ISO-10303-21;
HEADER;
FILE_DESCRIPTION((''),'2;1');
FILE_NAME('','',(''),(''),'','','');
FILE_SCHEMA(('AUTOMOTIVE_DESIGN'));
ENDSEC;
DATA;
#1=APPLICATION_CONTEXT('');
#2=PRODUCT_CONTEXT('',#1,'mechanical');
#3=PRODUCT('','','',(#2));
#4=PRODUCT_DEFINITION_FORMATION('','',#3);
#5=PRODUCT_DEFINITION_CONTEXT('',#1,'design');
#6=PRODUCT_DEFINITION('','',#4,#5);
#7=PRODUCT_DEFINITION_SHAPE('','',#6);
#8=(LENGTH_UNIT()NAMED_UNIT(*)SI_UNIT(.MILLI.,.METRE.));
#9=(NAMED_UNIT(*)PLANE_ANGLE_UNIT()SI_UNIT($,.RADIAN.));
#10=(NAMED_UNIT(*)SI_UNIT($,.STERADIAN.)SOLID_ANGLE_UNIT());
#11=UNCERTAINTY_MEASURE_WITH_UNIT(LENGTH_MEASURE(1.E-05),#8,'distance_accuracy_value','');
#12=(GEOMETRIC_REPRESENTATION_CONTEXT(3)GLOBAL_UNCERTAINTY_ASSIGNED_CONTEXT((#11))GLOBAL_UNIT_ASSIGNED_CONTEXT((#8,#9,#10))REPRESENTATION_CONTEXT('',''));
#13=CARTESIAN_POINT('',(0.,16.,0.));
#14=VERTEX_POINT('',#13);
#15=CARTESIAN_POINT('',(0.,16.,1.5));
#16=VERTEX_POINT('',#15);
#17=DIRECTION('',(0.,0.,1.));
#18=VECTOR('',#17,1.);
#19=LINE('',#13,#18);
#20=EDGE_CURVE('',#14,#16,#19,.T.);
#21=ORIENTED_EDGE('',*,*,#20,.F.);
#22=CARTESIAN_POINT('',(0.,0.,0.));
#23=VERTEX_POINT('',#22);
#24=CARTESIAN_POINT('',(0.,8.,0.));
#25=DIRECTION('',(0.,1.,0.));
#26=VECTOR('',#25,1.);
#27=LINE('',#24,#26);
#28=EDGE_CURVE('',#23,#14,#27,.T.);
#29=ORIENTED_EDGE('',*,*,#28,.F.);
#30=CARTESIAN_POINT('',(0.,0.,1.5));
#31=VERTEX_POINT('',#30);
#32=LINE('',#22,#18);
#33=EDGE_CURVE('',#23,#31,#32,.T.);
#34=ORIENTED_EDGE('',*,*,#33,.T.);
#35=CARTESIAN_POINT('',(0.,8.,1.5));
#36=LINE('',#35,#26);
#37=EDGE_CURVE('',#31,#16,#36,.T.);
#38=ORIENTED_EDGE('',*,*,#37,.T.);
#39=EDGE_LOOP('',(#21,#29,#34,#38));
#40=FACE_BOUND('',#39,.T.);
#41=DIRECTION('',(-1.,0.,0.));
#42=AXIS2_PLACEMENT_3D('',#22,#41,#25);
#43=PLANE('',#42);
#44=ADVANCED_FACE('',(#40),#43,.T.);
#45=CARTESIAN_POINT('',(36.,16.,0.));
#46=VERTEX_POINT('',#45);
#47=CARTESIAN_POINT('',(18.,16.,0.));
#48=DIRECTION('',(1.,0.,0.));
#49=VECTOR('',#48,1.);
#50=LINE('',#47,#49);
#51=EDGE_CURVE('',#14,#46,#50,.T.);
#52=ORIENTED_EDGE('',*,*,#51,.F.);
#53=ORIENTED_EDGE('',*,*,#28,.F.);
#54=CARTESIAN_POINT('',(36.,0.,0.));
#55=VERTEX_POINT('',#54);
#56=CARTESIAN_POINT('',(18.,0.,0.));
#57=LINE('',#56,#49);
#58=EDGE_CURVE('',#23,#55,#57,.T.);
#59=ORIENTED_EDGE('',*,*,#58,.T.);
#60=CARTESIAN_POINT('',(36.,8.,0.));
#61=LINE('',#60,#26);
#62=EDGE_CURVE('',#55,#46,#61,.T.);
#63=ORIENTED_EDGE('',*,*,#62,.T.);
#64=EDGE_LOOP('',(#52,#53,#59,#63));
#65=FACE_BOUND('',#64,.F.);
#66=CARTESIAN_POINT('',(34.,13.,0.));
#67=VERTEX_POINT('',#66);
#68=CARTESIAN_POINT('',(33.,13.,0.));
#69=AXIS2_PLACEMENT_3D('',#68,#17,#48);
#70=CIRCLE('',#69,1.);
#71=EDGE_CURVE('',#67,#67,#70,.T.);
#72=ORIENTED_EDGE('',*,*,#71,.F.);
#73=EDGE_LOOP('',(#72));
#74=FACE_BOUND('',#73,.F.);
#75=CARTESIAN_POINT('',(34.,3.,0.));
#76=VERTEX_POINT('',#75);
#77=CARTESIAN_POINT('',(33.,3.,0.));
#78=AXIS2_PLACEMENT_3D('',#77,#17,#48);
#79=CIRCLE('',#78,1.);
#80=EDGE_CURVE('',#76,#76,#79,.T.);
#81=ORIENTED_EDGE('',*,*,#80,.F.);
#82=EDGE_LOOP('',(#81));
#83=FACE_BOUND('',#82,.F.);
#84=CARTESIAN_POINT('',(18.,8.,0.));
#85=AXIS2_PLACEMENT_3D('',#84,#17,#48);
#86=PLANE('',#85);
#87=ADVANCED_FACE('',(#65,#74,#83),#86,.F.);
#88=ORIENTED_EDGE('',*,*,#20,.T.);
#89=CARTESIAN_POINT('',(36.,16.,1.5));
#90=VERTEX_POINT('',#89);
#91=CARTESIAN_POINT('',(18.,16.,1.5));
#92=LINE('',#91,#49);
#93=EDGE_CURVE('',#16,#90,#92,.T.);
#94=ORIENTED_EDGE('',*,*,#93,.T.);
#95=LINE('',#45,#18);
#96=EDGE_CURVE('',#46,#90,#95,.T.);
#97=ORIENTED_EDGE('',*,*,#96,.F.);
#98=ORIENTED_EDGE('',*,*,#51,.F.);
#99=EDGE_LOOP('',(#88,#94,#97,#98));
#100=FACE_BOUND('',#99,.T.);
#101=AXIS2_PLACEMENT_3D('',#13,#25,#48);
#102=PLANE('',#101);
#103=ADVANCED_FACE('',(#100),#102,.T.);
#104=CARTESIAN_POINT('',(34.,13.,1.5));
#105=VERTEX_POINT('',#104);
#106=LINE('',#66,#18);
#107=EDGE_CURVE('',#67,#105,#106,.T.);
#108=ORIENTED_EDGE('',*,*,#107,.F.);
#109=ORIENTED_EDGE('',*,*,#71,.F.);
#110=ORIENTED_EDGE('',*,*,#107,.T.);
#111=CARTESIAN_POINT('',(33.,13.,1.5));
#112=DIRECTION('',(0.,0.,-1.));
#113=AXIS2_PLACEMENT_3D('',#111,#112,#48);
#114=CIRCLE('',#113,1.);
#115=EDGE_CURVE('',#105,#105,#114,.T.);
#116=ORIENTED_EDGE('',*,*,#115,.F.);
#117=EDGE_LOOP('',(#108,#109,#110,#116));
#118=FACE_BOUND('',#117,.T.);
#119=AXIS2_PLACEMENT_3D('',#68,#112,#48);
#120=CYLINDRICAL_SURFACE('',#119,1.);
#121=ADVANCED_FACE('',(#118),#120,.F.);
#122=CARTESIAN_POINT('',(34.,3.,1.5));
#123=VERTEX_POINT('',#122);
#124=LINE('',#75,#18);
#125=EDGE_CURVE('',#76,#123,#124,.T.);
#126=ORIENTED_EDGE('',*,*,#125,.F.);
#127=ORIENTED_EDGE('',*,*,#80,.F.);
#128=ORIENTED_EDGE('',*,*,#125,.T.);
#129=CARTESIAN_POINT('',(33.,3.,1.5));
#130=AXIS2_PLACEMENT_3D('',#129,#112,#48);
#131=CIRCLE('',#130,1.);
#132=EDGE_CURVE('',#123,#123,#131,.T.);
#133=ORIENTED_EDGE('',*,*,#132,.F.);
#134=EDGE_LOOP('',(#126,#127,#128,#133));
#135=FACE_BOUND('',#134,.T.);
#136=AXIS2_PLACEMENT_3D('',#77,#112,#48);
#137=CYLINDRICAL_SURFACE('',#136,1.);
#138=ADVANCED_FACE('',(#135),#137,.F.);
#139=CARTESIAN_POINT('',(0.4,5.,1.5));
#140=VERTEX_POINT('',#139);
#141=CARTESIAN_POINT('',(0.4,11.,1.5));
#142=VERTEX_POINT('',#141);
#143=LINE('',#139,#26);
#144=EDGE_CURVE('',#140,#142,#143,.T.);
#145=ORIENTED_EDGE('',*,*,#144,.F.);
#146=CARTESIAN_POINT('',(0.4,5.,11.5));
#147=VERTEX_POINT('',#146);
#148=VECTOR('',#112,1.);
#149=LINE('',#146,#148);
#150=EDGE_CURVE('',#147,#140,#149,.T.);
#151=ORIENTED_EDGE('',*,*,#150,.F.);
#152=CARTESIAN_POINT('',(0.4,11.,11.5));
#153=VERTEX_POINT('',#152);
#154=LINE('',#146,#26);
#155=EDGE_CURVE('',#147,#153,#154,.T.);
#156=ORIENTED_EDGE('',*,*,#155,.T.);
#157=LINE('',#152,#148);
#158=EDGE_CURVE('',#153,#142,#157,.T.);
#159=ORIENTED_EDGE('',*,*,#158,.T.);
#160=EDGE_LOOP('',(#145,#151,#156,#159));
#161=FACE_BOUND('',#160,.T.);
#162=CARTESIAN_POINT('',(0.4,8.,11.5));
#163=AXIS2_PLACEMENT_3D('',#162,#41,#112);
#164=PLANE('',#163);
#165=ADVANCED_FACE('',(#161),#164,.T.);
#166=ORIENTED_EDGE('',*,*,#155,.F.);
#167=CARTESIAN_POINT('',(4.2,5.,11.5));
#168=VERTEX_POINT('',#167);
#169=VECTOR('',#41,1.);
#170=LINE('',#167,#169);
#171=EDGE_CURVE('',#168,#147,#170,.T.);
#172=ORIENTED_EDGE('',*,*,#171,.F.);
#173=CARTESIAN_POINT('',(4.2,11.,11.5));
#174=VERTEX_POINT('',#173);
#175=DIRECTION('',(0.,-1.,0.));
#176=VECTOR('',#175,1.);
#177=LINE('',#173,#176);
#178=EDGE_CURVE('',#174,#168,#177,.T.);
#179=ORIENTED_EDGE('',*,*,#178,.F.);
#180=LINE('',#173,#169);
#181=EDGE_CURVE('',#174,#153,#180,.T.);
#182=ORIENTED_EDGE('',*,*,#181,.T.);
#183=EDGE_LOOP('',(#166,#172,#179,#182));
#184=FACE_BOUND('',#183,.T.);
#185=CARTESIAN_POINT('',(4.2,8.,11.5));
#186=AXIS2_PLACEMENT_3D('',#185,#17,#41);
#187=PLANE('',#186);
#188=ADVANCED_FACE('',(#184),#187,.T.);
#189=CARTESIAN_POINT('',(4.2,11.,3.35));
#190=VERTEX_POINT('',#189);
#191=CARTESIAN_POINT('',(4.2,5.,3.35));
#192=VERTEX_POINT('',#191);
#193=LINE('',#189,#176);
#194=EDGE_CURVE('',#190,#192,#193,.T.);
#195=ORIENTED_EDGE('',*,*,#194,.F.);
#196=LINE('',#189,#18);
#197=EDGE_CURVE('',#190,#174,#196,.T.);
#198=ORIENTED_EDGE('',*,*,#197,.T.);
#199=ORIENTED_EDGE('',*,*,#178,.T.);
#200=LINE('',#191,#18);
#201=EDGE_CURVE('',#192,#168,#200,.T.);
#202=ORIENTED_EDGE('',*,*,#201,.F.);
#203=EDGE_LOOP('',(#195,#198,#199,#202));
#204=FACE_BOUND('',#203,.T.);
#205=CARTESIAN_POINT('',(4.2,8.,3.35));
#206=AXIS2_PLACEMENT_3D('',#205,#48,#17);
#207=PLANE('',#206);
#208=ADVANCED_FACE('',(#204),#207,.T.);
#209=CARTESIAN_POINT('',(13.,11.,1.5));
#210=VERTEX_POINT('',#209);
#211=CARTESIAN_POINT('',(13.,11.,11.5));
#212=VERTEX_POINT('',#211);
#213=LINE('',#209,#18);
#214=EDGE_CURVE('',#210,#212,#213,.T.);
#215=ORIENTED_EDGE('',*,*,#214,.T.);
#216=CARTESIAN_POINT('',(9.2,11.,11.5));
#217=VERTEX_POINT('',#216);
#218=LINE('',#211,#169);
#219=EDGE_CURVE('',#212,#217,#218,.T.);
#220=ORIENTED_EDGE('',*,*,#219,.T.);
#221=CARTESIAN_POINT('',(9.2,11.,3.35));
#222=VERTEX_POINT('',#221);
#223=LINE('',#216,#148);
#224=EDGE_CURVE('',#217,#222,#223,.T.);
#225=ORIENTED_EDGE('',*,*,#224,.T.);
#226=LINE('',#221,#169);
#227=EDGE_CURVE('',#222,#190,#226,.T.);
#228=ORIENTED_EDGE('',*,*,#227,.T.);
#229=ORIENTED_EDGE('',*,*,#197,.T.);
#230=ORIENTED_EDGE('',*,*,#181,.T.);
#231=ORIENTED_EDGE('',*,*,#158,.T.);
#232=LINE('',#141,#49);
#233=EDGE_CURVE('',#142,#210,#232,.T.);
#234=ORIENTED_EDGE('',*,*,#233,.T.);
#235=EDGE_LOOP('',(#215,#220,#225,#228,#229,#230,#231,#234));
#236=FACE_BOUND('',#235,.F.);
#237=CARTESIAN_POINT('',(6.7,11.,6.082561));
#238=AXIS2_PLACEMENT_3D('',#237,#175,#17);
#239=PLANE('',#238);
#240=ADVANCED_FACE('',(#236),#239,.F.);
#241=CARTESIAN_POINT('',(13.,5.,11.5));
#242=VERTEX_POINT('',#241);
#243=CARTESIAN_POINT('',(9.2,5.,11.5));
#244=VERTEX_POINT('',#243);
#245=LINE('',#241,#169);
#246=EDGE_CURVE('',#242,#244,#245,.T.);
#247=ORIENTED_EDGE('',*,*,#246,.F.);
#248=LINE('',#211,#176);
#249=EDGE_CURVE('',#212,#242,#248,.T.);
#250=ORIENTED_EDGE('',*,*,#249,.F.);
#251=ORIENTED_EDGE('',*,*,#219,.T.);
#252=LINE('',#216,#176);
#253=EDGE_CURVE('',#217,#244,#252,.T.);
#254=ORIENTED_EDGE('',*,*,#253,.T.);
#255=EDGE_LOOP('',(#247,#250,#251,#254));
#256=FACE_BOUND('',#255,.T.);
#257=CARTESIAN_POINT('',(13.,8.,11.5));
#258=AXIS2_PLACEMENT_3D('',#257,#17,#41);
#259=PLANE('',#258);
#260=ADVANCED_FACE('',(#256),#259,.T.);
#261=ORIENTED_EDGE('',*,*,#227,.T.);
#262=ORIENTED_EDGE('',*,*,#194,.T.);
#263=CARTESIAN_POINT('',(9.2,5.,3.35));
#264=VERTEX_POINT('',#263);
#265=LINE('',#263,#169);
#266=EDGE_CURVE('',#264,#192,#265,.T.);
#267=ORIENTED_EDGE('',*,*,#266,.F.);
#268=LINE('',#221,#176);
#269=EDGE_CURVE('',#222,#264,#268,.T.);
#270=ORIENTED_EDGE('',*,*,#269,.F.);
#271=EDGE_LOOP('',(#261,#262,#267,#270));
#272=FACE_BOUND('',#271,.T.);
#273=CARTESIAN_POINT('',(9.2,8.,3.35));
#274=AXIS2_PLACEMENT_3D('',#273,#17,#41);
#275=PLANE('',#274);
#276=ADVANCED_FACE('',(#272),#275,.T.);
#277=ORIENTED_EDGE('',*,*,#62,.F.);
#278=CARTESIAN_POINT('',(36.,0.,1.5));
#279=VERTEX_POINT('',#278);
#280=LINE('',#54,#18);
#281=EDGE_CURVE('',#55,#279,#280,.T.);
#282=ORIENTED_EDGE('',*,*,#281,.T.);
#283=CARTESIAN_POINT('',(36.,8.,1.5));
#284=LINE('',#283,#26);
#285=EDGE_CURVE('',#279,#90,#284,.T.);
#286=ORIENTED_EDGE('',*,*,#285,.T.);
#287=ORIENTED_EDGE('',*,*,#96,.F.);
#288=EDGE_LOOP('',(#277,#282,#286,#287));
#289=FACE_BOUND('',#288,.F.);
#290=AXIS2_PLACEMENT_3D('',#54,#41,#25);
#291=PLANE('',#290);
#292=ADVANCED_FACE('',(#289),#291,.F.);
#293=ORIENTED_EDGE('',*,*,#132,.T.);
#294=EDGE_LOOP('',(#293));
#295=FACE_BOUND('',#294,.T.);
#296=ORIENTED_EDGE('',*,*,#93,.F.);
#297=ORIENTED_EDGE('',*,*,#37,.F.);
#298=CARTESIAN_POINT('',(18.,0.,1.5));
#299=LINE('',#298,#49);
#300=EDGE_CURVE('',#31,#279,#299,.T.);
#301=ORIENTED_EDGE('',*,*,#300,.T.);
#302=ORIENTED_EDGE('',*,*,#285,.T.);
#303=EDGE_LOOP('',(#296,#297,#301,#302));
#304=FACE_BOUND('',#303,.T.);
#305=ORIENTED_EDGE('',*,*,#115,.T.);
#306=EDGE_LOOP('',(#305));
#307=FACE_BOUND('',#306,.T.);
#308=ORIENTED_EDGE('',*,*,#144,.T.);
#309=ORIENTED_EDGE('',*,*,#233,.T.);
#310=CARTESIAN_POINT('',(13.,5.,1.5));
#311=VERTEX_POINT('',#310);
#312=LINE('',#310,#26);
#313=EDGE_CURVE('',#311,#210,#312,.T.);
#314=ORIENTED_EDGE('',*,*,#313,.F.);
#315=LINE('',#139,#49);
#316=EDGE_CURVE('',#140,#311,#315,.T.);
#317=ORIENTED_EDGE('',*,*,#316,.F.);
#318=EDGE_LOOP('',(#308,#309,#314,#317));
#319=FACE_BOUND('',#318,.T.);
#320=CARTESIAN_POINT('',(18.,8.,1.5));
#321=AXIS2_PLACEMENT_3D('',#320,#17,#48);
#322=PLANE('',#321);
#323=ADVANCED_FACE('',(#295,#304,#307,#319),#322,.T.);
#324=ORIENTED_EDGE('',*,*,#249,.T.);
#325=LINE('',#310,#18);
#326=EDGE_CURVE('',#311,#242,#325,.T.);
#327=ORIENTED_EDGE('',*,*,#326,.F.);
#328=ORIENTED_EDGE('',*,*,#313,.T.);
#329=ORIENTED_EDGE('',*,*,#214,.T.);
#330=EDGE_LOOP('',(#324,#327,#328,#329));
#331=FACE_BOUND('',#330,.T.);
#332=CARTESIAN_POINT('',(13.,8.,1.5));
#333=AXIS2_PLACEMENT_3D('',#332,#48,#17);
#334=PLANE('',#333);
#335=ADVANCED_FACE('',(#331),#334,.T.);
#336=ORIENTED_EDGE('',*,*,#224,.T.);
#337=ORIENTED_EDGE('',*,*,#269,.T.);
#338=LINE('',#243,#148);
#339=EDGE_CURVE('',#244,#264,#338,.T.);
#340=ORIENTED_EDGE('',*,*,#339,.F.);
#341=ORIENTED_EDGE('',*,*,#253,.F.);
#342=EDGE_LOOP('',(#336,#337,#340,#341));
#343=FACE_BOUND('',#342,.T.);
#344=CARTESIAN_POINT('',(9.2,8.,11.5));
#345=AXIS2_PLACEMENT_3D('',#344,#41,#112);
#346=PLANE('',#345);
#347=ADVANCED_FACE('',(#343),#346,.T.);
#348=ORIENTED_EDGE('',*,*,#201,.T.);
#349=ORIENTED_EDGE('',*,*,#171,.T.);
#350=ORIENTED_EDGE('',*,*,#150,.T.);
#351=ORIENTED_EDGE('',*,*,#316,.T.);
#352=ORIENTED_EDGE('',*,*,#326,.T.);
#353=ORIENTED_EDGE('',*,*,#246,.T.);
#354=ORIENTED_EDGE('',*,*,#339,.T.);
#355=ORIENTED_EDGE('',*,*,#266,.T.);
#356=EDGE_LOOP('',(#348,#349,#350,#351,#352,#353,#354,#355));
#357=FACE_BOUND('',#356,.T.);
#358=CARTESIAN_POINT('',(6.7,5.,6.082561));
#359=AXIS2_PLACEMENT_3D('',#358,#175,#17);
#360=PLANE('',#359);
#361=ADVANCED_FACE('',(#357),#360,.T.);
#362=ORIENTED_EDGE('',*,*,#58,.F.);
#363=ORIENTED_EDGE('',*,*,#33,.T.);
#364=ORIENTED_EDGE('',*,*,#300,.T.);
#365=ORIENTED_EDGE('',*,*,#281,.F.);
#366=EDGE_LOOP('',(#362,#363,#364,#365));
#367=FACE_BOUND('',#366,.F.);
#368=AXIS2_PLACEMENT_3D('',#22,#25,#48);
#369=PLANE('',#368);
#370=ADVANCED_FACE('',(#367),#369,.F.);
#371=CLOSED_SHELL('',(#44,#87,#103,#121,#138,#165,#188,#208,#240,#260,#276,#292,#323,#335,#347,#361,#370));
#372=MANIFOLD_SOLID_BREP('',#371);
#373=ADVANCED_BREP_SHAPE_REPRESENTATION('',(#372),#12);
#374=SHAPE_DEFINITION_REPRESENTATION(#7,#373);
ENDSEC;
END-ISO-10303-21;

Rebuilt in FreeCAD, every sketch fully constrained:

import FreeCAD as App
import Part
import Sketcher
Q = App.Units.Quantity

doc = App.newDocument("Part")
body = doc.addObject("PartDesign::Body", "Body")

sketch1 = doc.addObject("Sketcher::SketchObject", "Sketch")
body.addObject(sketch1)
sketch1.AttachmentSupport = (doc.XY_Plane, [""])
sketch1.MapMode = "FlatFace"
sketch1.addGeometry(Part.Circle(App.Vector(33, 3, 0), App.Vector(0, 0, 1), 1), False)
sketch1.addConstraint([
    Sketcher.Constraint("Diameter", 0, Q("2 mm")),
    Sketcher.Constraint("DistanceX", -1, 1, 0, 3, Q("33 mm")),
    Sketcher.Constraint("DistanceY", -1, 1, 0, 3, Q("3 mm")),
])
pad1 = doc.addObject("PartDesign::Pad", "Pad")
body.addObject(pad1)
pad1.Profile = sketch1
pad1.Length = 5
body2 = doc.addObject("PartDesign::Body", "Body001")
body2.AllowCompound = True

sketch2 = doc.addObject("Sketcher::SketchObject", "Sketch001")
body2.addObject(sketch2)
sketch2.AttachmentSupport = (doc.getObject("XY_Plane001"), [""])
sketch2.MapMode = "FlatFace"
sketch2.addGeometry(Part.Circle(App.Vector(33, 13, 0), App.Vector(0, 0, 1), 1), False)
sketch2.addConstraint([
    Sketcher.Constraint("Diameter", 0, Q("2 mm")),
    Sketcher.Constraint("DistanceX", -1, 1, 0, 3, Q("33 mm")),
    Sketcher.Constraint("DistanceY", -1, 1, 0, 3, Q("13 mm")),
])
pad2 = doc.addObject("PartDesign::Pad", "Pad001")
body2.addObject(pad2)
pad2.Profile = sketch2
pad2.Length = 5
doc.recompute()

boolean = doc.addObject("PartDesign::Boolean", "Boolean")
body2.addObject(boolean)
boolean.Type = "Fuse"
boolean.addObjects([body])
body3 = doc.addObject("PartDesign::Body", "Body002")

sketch3 = doc.addObject("Sketcher::SketchObject", "Sketch002")
body3.addObject(sketch3)
sketch3.AttachmentSupport = (doc.getObject("XY_Plane002"), [""])
sketch3.MapMode = "FlatFace"
sketch3.addGeometry([
    Part.LineSegment(App.Vector(0, 16, 0), App.Vector(0, 0, 0)),
    Part.LineSegment(App.Vector(0, 0, 0), App.Vector(36, 0, 0)),
    Part.LineSegment(App.Vector(36, 0, 0), App.Vector(36, 16, 0)),
    Part.LineSegment(App.Vector(36, 16, 0), App.Vector(0, 16, 0)),
], False)
sketch3.addConstraint([
    Sketcher.Constraint("Coincident", 0, 2, 1, 1),
    Sketcher.Constraint("Coincident", 1, 2, 2, 1),
    Sketcher.Constraint("Coincident", 2, 2, 3, 1),
    Sketcher.Constraint("Coincident", 3, 2, 0, 1),
    Sketcher.Constraint("Vertical", 0),
    Sketcher.Constraint("Horizontal", 1),
    Sketcher.Constraint("Vertical", 2),
    Sketcher.Constraint("Horizontal", 3),
    Sketcher.Constraint("Coincident", 0, 2, -1, 1),
    Sketcher.Constraint("DistanceX", 1, 1, 1, 2, Q("36 mm")),
    Sketcher.Constraint("DistanceY", 0, 2, 0, 1, Q("16 mm")),
])
pad3 = doc.addObject("PartDesign::Pad", "Pad002")
body3.addObject(pad3)
pad3.Profile = sketch3
pad3.Length = 1.5
doc.recompute()

boolean2 = doc.addObject("PartDesign::Boolean", "Boolean001")
body3.addObject(boolean2)
boolean2.Type = "Cut"
boolean2.addObjects([body2])
body4 = doc.addObject("PartDesign::Body", "Body003")

sketch4 = doc.addObject("Sketcher::SketchObject", "Sketch003")
body4.addObject(sketch4)
sketch4.AttachmentSupport = (doc.getObject("XZ_Plane003"), [""])
sketch4.MapMode = "FlatFace"
sketch4.AttachmentOffset = App.Placement(App.Vector(0, 0, -8), App.Rotation())
sketch4.addGeometry([
    Part.LineSegment(App.Vector(13, 1.5, 0), App.Vector(13, 11.5, 0)),
    Part.LineSegment(App.Vector(13, 11.5, 0), App.Vector(9.2, 11.5, 0)),
    Part.LineSegment(App.Vector(9.2, 11.5, 0), App.Vector(9.2, 3.4, 0)),
    Part.LineSegment(App.Vector(9.2, 3.4, 0), App.Vector(4.2, 3.4, 0)),
    Part.LineSegment(App.Vector(4.2, 3.4, 0), App.Vector(4.2, 11.5, 0)),
    Part.LineSegment(App.Vector(4.2, 11.5, 0), App.Vector(0.4, 11.5, 0)),
    Part.LineSegment(App.Vector(0.4, 11.5, 0), App.Vector(0.4, 1.5, 0)),
    Part.LineSegment(App.Vector(0.4, 1.5, 0), App.Vector(13, 1.5, 0)),
], False)
sketch4.addConstraint([
    Sketcher.Constraint("Coincident", 0, 2, 1, 1),
    Sketcher.Constraint("Coincident", 1, 2, 2, 1),
    Sketcher.Constraint("Coincident", 2, 2, 3, 1),
    Sketcher.Constraint("Coincident", 3, 2, 4, 1),
    Sketcher.Constraint("Coincident", 4, 2, 5, 1),
    Sketcher.Constraint("Coincident", 5, 2, 6, 1),
    Sketcher.Constraint("Coincident", 6, 2, 7, 1),
    Sketcher.Constraint("Coincident", 7, 2, 0, 1),
    Sketcher.Constraint("Vertical", 0),
    Sketcher.Constraint("Horizontal", 1),
    Sketcher.Constraint("Vertical", 2),
    Sketcher.Constraint("Horizontal", 3),
    Sketcher.Constraint("Vertical", 4),
    Sketcher.Constraint("Horizontal", 5),
    Sketcher.Constraint("Vertical", 6),
    Sketcher.Constraint("Horizontal", 7),
    Sketcher.Constraint("Horizontal", 1, 2, 4, 2),
    Sketcher.Constraint("Equal", 1, 5),
    Sketcher.Constraint("DistanceX", 3, 2, 3, 1, Q("5 mm")),
    Sketcher.Constraint("DistanceY", 0, 1, 0, 2, Q("10 mm")),
    Sketcher.Constraint("DistanceX", 1, 2, 1, 1, Q("3.8 mm")),
    Sketcher.Constraint("DistanceX", -1, 1, 0, 2, Q("13 mm")),
    Sketcher.Constraint("DistanceY", 2, 2, 2, 1, Q("8.15 mm")),
    Sketcher.Constraint("DistanceY", -1, 1, 0, 2, Q("11.5 mm")),
])
pad4 = doc.addObject("PartDesign::Pad", "Pad003")
body4.addObject(pad4)
pad4.Profile = sketch4
pad4.Length = 6
pad4.Midplane = True
doc.recompute()

boolean3 = doc.addObject("PartDesign::Boolean", "Boolean002")
body4.addObject(boolean3)
boolean3.Type = "Fuse"
boolean3.addObjects([body3])

doc.recompute()
